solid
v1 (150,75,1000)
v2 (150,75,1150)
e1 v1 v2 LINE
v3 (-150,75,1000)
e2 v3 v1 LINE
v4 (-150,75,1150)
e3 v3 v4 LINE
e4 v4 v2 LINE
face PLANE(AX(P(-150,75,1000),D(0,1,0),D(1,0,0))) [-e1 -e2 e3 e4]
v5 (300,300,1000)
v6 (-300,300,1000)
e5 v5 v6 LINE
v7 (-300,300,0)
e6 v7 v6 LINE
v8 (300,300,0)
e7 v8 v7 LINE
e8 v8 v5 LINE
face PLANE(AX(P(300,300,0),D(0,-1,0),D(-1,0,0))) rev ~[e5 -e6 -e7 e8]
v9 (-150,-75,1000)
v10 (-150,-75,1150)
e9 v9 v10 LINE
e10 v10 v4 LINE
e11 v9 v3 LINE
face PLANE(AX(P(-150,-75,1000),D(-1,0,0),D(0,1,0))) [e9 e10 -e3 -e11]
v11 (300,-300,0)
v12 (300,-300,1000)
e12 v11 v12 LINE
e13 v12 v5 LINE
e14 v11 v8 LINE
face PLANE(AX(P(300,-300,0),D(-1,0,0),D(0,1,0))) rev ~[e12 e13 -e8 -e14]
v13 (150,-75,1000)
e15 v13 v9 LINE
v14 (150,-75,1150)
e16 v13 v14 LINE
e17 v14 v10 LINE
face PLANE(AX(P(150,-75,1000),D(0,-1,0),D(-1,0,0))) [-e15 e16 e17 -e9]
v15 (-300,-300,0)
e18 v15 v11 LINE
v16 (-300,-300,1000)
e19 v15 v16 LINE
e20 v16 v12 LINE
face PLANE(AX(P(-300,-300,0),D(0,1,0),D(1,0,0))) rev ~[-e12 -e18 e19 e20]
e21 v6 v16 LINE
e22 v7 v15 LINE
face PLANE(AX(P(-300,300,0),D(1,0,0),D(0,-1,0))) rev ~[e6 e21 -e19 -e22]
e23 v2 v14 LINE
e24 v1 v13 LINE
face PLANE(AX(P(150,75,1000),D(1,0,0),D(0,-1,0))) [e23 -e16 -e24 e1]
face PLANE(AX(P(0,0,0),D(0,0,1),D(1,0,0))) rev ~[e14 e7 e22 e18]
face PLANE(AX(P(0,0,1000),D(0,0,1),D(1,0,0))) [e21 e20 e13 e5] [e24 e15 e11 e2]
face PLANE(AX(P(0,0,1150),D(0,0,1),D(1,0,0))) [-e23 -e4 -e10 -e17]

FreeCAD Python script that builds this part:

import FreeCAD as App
import Part
import Sketcher
from FreeCAD import Vector

doc = App.newDocument("Part")
body = doc.addObject("PartDesign::Body", "Body")

sketch1 = doc.addObject("Sketcher::SketchObject", "Sketch")
body.addObject(sketch1)
sketch1.AttachmentSupport = (doc.XY_Plane, [""])
sketch1.MapMode = "FlatFace"
sketch1.addGeometry(Part.LineSegment(Vector(-300, 300, 0), Vector(-300, -300, 0)), False)
sketch1.addGeometry(Part.LineSegment(Vector(-300, -300, 0), Vector(300, -300, 0)), False)
sketch1.addGeometry(Part.LineSegment(Vector(300, -300, 0), Vector(300, 300, 0)), False)
sketch1.addGeometry(Part.LineSegment(Vector(300, 300, 0), Vector(-300, 300, 0)), False)
sketch1.addConstraint(Sketcher.Constraint("Coincident", 0, 2, 1, 1))
sketch1.addConstraint(Sketcher.Constraint("Coincident", 1, 2, 2, 1))
sketch1.addConstraint(Sketcher.Constraint("Coincident", 2, 2, 3, 1))
sketch1.addConstraint(Sketcher.Constraint("Coincident", 3, 2, 0, 1))
sketch1.addConstraint(Sketcher.Constraint("Vertical", 0))
sketch1.addConstraint(Sketcher.Constraint("Horizontal", 1))
sketch1.addConstraint(Sketcher.Constraint("Vertical", 2))
sketch1.addConstraint(Sketcher.Constraint("Horizontal", 3))
sketch1.addConstraint(Sketcher.Constraint("Symmetric", 0, 2, 2, 2, -1, 1))
sketch1.addConstraint(Sketcher.Constraint("Equal", 3, 0))
sketch1.addConstraint(Sketcher.Constraint("DistanceX", 1, 1, 1, 2, 600.0))
pad1 = doc.addObject("PartDesign::Pad", "Pad")
body.addObject(pad1)
pad1.Profile = sketch1
pad1.Length = 1000

sketch2 = doc.addObject("Sketcher::SketchObject", "Sketch001")
body.addObject(sketch2)
sketch2.AttachmentSupport = (doc.XY_Plane, [""])
sketch2.MapMode = "FlatFace"
sketch2.AttachmentOffset = App.Placement(Vector(0, 0, 1000), App.Rotation())
sketch2.addGeometry(Part.LineSegment(Vector(150, 75, 0), Vector(-150, 75, 0)), False)
sketch2.addGeometry(Part.LineSegment(Vector(-150, 75, 0), Vector(-150, -75, 0)), False)
sketch2.addGeometry(Part.LineSegment(Vector(-150, -75, 0), Vector(150, -75, 0)), False)
sketch2.addGeometry(Part.LineSegment(Vector(150, -75, 0), Vector(150, 75, 0)), False)
sketch2.addConstraint(Sketcher.Constraint("Coincident", 0, 2, 1, 1))
sketch2.addConstraint(Sketcher.Constraint("Coincident", 1, 2, 2, 1))
sketch2.addConstraint(Sketcher.Constraint("Coincident", 2, 2, 3, 1))
sketch2.addConstraint(Sketcher.Constraint("Coincident", 3, 2, 0, 1))
sketch2.addConstraint(Sketcher.Constraint("Horizontal", 0))
sketch2.addConstraint(Sketcher.Constraint("Vertical", 1))
sketch2.addConstraint(Sketcher.Constraint("Horizontal", 2))
sketch2.addConstraint(Sketcher.Constraint("Vertical", 3))
sketch2.addConstraint(Sketcher.Constraint("Symmetric", 0, 2, 2, 2, -1, 1))
sketch2.addConstraint(Sketcher.Constraint("DistanceX", 0, 2, 0, 1, 300.0))
sketch2.addConstraint(Sketcher.Constraint("DistanceY", 1, 2, 1, 1, 150.0))
pad2 = doc.addObject("PartDesign::Pad", "Pad001")
body.addObject(pad2)
pad2.Profile = sketch2
pad2.Length = 150

doc.recompute()
